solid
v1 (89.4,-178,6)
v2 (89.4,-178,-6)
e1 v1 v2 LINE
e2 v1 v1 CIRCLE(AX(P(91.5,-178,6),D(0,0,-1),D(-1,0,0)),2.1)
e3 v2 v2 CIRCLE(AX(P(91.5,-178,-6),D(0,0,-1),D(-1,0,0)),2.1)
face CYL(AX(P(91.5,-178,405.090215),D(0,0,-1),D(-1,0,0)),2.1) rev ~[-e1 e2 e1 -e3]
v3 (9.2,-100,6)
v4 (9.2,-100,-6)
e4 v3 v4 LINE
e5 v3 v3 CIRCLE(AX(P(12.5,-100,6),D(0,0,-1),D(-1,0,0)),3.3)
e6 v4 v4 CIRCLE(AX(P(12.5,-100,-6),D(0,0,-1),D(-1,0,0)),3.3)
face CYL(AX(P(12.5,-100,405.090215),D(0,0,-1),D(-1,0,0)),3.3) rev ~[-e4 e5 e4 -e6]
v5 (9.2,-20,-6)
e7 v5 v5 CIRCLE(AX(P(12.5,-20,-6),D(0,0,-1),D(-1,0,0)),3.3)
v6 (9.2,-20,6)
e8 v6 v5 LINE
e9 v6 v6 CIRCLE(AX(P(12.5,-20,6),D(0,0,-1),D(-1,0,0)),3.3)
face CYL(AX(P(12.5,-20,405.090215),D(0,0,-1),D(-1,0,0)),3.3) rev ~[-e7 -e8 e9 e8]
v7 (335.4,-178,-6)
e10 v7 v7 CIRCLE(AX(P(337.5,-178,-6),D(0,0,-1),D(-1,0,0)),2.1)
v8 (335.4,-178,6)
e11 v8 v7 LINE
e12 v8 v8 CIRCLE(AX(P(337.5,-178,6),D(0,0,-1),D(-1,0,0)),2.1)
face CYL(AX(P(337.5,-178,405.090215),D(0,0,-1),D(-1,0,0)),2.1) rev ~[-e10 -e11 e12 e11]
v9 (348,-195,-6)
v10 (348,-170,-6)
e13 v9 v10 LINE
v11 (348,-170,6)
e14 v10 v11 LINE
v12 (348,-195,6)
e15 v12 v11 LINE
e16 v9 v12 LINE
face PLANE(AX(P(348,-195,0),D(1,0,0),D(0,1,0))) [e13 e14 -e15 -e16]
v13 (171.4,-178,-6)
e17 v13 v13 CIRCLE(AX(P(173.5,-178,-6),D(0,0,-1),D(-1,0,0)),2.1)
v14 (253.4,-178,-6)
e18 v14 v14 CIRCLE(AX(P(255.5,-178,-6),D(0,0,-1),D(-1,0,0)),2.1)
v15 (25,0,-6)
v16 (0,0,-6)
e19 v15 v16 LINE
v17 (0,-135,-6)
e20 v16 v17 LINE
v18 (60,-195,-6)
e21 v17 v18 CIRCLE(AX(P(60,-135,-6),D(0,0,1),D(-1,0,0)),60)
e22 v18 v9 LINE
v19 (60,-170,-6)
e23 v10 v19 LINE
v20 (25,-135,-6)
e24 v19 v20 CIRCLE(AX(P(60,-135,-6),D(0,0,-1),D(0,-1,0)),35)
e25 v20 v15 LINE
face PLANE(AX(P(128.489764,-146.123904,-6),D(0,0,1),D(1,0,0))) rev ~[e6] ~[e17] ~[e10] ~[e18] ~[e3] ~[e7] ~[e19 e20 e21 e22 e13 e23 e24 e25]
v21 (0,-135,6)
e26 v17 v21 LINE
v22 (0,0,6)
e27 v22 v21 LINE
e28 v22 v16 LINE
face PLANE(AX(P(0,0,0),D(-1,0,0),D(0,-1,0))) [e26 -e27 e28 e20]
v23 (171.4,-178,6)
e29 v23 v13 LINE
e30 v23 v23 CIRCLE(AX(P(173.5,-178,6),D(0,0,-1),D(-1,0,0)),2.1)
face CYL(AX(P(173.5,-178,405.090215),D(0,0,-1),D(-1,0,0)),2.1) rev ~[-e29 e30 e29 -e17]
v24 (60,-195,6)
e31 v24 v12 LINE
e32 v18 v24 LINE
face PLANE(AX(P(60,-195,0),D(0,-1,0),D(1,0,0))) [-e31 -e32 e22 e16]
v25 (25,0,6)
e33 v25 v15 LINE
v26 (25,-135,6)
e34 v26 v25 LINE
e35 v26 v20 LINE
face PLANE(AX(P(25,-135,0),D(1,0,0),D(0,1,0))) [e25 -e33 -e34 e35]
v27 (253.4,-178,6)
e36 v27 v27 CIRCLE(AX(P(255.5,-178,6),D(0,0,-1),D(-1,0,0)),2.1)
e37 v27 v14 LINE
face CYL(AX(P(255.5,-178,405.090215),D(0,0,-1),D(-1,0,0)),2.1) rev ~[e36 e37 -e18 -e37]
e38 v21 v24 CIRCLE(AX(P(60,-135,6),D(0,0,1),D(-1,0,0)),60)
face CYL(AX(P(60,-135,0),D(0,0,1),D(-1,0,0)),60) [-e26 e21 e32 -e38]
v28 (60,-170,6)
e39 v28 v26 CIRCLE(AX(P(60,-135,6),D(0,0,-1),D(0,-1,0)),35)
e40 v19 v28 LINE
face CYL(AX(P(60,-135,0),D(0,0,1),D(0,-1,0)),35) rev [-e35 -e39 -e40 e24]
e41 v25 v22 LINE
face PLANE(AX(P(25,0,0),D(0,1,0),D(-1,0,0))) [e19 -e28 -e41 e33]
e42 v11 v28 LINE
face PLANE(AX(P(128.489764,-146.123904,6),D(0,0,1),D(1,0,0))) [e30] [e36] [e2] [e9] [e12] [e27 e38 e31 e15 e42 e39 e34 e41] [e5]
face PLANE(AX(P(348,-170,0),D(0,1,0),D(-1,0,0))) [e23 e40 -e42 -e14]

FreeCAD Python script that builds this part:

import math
import FreeCAD as App
import Part
import Sketcher
from FreeCAD import Vector
Q = App.Units.Quantity

doc = App.newDocument("Part")
params = doc.addObject("Spreadsheet::Sheet", "Params")
for row, (alias, value) in enumerate([
    ("sketch1_radius", "60 mm"),
    ("sketch1_radius2", "35 mm"),
    ("sketch1_width", "288 mm"),
    ("sketch1_height", "135 mm"),
    ("pad1_length", "12 mm"),
    ("sketch2_diameter", "6.6 mm"),
    ("hole_diameter", "6.6 mm"),
    ("sketch3_diameter", "4.2 mm"),
    ("hole2_diameter", "4.2 mm"),
    ("linearpattern_pitch", "82 mm"),
], start=1):
    params.set(f"A{row}", alias)
    params.set(f"B{row}", "=" + value)
    params.setAlias(f"B{row}", alias)

body = doc.addObject("PartDesign::Body", "Body")

sketch1 = doc.addObject("Sketcher::SketchObject", "Sketch")
body.addObject(sketch1)
sketch1.AttachmentSupport = (doc.XY_Plane, [""])
sketch1.MapMode = "FlatFace"
sketch1.addGeometry([
    Part.LineSegment(Vector(0, 0, 0), Vector(0, -135, 0)),
    Part.ArcOfCircle(Part.Circle(Vector(60, -135, 0), Vector(0, 0, 1), 60), math.radians(-180), math.radians(-90)),
    Part.LineSegment(Vector(60, -195, 0), Vector(348, -195, 0)),
    Part.LineSegment(Vector(348, -195, 0), Vector(348, -170, 0)),
    Part.LineSegment(Vector(348, -170, 0), Vector(60, -170, 0)),
    Part.ArcOfCircle(Part.Circle(Vector(60, -135, 0), Vector(0, 0, 1), 35), math.radians(180), math.radians(270)),
    Part.LineSegment(Vector(25, -135, 0), Vector(25, 0, 0)),
    Part.LineSegment(Vector(25, 0, 0), Vector(0, 0, 0)),
], False)
sketch1.addConstraint([
    Sketcher.Constraint("Tangent", 0, 2, 1, 1),
    Sketcher.Constraint("Tangent", 1, 2, 2, 1),
    Sketcher.Constraint("Coincident", 2, 2, 3, 1),
    Sketcher.Constraint("Coincident", 3, 2, 4, 1),
    Sketcher.Constraint("Tangent", 4, 2, 5, 2),
    Sketcher.Constraint("Tangent", 5, 1, 6, 1),
    Sketcher.Constraint("Coincident", 6, 2, 7, 1),
    Sketcher.Constraint("Coincident", 7, 2, 0, 1),
    Sketcher.Constraint("Vertical", 0),
    Sketcher.Constraint("Horizontal", 2),
    Sketcher.Constraint("Vertical", 3),
    Sketcher.Constraint("Horizontal", 4),
    Sketcher.Constraint("Vertical", 6),
    Sketcher.Constraint("Horizontal", 7),
    Sketcher.Constraint("Coincident", 7, 2, -1, 1),
    Sketcher.Constraint("Coincident", 5, 3, 1, 3),
    Sketcher.Constraint("Radius", 1, Q("60 mm")),
    Sketcher.Constraint("Radius", 5, Q("35 mm")),
    Sketcher.Constraint("DistanceX", 2, 1, 2, 2, Q("288 mm")),
    Sketcher.Constraint("DistanceY", 0, 2, 0, 1, Q("135 mm")),
])
sketch1.setExpression("Constraints[16]", "Params.sketch1_radius")
sketch1.setExpression("Constraints[17]", "Params.sketch1_radius2")
sketch1.setExpression("Constraints[18]", "Params.sketch1_width")
sketch1.setExpression("Constraints[19]", "Params.sketch1_height")
pad1 = doc.addObject("PartDesign::Pad", "Pad")
body.addObject(pad1)
pad1.Profile = sketch1
pad1.setExpression("Length", "Params.pad1_length")
pad1.Midplane = True

sketch2 = doc.addObject("Sketcher::SketchObject", "Sketch001")
body.addObject(sketch2)
sketch2.AttachmentSupport = (doc.XY_Plane, [""])
sketch2.MapMode = "FlatFace"
sketch2.AttachmentOffset = App.Placement(Vector(0, 0, 6), App.Rotation())
sketch2.addGeometry([
    Part.Circle(Vector(12.5, -20, 0), Vector(0, 0, 1), 3.3),
    Part.Circle(Vector(12.5, -100, 0), Vector(0, 0, 1), 3.3),
], False)
sketch2.addConstraint([
    Sketcher.Constraint("Equal", 0, 1),
    Sketcher.Constraint("Vertical", 0, 3, 1, 3),
    Sketcher.Constraint("Diameter", 0, Q("6.6 mm")),
    Sketcher.Constraint("DistanceY", 0, 3, -1, 1, Q("20 mm")),
    Sketcher.Constraint("DistanceY", 1, 3, -1, 1, Q("100 mm")),
    Sketcher.Constraint("DistanceX", -1, 1, 0, 3, Q("12.5 mm")),
])
sketch2.setExpression("Constraints[2]", "Params.sketch2_diameter")
doc.recompute()
hole = doc.addObject("PartDesign::Hole", "Hole")
body.addObject(hole)
hole.Profile = sketch2
hole.ThreadType = "None"
hole.setExpression("Diameter", "Params.hole_diameter")
hole.DepthType = "ThroughAll"

sketch3 = doc.addObject("Sketcher::SketchObject", "Sketch002")
body.addObject(sketch3)
sketch3.AttachmentSupport = (doc.XY_Plane, [""])
sketch3.MapMode = "FlatFace"
sketch3.AttachmentOffset = App.Placement(Vector(0, 0, 6), App.Rotation())
sketch3.addGeometry(Part.Circle(Vector(337.5, -178, 0), Vector(0, 0, 1), 2.1), False)
sketch3.addConstraint([
    Sketcher.Constraint("Diameter", 0, Q("4.2 mm")),
    Sketcher.Constraint("DistanceY", 0, 3, -1, 1, Q("178 mm")),
    Sketcher.Constraint("DistanceX", -1, 1, 0, 3, Q("337.5 mm")),
])
sketch3.setExpression("Constraints[0]", "Params.sketch3_diameter")
doc.recompute()
hole2 = doc.addObject("PartDesign::Hole", "Hole001")
body.addObject(hole2)
hole2.Profile = sketch3
hole2.ThreadType = "None"
hole2.setExpression("Diameter", "Params.hole2_diameter")
hole2.DepthType = "ThroughAll"
doc.recompute()

linearpattern = doc.addObject("PartDesign::LinearPattern", "LinearPattern")
body.addObject(linearpattern)
linearpattern.Originals = [hole2]
linearpattern.Direction = (doc.X_Axis, [""])
linearpattern.Mode = "offset"
linearpattern.setExpression("Offset", "Params.linearpattern_pitch")
linearpattern.Occurrences = 4
linearpattern.Reversed = True
body.Tip = linearpattern

doc.recompute()
